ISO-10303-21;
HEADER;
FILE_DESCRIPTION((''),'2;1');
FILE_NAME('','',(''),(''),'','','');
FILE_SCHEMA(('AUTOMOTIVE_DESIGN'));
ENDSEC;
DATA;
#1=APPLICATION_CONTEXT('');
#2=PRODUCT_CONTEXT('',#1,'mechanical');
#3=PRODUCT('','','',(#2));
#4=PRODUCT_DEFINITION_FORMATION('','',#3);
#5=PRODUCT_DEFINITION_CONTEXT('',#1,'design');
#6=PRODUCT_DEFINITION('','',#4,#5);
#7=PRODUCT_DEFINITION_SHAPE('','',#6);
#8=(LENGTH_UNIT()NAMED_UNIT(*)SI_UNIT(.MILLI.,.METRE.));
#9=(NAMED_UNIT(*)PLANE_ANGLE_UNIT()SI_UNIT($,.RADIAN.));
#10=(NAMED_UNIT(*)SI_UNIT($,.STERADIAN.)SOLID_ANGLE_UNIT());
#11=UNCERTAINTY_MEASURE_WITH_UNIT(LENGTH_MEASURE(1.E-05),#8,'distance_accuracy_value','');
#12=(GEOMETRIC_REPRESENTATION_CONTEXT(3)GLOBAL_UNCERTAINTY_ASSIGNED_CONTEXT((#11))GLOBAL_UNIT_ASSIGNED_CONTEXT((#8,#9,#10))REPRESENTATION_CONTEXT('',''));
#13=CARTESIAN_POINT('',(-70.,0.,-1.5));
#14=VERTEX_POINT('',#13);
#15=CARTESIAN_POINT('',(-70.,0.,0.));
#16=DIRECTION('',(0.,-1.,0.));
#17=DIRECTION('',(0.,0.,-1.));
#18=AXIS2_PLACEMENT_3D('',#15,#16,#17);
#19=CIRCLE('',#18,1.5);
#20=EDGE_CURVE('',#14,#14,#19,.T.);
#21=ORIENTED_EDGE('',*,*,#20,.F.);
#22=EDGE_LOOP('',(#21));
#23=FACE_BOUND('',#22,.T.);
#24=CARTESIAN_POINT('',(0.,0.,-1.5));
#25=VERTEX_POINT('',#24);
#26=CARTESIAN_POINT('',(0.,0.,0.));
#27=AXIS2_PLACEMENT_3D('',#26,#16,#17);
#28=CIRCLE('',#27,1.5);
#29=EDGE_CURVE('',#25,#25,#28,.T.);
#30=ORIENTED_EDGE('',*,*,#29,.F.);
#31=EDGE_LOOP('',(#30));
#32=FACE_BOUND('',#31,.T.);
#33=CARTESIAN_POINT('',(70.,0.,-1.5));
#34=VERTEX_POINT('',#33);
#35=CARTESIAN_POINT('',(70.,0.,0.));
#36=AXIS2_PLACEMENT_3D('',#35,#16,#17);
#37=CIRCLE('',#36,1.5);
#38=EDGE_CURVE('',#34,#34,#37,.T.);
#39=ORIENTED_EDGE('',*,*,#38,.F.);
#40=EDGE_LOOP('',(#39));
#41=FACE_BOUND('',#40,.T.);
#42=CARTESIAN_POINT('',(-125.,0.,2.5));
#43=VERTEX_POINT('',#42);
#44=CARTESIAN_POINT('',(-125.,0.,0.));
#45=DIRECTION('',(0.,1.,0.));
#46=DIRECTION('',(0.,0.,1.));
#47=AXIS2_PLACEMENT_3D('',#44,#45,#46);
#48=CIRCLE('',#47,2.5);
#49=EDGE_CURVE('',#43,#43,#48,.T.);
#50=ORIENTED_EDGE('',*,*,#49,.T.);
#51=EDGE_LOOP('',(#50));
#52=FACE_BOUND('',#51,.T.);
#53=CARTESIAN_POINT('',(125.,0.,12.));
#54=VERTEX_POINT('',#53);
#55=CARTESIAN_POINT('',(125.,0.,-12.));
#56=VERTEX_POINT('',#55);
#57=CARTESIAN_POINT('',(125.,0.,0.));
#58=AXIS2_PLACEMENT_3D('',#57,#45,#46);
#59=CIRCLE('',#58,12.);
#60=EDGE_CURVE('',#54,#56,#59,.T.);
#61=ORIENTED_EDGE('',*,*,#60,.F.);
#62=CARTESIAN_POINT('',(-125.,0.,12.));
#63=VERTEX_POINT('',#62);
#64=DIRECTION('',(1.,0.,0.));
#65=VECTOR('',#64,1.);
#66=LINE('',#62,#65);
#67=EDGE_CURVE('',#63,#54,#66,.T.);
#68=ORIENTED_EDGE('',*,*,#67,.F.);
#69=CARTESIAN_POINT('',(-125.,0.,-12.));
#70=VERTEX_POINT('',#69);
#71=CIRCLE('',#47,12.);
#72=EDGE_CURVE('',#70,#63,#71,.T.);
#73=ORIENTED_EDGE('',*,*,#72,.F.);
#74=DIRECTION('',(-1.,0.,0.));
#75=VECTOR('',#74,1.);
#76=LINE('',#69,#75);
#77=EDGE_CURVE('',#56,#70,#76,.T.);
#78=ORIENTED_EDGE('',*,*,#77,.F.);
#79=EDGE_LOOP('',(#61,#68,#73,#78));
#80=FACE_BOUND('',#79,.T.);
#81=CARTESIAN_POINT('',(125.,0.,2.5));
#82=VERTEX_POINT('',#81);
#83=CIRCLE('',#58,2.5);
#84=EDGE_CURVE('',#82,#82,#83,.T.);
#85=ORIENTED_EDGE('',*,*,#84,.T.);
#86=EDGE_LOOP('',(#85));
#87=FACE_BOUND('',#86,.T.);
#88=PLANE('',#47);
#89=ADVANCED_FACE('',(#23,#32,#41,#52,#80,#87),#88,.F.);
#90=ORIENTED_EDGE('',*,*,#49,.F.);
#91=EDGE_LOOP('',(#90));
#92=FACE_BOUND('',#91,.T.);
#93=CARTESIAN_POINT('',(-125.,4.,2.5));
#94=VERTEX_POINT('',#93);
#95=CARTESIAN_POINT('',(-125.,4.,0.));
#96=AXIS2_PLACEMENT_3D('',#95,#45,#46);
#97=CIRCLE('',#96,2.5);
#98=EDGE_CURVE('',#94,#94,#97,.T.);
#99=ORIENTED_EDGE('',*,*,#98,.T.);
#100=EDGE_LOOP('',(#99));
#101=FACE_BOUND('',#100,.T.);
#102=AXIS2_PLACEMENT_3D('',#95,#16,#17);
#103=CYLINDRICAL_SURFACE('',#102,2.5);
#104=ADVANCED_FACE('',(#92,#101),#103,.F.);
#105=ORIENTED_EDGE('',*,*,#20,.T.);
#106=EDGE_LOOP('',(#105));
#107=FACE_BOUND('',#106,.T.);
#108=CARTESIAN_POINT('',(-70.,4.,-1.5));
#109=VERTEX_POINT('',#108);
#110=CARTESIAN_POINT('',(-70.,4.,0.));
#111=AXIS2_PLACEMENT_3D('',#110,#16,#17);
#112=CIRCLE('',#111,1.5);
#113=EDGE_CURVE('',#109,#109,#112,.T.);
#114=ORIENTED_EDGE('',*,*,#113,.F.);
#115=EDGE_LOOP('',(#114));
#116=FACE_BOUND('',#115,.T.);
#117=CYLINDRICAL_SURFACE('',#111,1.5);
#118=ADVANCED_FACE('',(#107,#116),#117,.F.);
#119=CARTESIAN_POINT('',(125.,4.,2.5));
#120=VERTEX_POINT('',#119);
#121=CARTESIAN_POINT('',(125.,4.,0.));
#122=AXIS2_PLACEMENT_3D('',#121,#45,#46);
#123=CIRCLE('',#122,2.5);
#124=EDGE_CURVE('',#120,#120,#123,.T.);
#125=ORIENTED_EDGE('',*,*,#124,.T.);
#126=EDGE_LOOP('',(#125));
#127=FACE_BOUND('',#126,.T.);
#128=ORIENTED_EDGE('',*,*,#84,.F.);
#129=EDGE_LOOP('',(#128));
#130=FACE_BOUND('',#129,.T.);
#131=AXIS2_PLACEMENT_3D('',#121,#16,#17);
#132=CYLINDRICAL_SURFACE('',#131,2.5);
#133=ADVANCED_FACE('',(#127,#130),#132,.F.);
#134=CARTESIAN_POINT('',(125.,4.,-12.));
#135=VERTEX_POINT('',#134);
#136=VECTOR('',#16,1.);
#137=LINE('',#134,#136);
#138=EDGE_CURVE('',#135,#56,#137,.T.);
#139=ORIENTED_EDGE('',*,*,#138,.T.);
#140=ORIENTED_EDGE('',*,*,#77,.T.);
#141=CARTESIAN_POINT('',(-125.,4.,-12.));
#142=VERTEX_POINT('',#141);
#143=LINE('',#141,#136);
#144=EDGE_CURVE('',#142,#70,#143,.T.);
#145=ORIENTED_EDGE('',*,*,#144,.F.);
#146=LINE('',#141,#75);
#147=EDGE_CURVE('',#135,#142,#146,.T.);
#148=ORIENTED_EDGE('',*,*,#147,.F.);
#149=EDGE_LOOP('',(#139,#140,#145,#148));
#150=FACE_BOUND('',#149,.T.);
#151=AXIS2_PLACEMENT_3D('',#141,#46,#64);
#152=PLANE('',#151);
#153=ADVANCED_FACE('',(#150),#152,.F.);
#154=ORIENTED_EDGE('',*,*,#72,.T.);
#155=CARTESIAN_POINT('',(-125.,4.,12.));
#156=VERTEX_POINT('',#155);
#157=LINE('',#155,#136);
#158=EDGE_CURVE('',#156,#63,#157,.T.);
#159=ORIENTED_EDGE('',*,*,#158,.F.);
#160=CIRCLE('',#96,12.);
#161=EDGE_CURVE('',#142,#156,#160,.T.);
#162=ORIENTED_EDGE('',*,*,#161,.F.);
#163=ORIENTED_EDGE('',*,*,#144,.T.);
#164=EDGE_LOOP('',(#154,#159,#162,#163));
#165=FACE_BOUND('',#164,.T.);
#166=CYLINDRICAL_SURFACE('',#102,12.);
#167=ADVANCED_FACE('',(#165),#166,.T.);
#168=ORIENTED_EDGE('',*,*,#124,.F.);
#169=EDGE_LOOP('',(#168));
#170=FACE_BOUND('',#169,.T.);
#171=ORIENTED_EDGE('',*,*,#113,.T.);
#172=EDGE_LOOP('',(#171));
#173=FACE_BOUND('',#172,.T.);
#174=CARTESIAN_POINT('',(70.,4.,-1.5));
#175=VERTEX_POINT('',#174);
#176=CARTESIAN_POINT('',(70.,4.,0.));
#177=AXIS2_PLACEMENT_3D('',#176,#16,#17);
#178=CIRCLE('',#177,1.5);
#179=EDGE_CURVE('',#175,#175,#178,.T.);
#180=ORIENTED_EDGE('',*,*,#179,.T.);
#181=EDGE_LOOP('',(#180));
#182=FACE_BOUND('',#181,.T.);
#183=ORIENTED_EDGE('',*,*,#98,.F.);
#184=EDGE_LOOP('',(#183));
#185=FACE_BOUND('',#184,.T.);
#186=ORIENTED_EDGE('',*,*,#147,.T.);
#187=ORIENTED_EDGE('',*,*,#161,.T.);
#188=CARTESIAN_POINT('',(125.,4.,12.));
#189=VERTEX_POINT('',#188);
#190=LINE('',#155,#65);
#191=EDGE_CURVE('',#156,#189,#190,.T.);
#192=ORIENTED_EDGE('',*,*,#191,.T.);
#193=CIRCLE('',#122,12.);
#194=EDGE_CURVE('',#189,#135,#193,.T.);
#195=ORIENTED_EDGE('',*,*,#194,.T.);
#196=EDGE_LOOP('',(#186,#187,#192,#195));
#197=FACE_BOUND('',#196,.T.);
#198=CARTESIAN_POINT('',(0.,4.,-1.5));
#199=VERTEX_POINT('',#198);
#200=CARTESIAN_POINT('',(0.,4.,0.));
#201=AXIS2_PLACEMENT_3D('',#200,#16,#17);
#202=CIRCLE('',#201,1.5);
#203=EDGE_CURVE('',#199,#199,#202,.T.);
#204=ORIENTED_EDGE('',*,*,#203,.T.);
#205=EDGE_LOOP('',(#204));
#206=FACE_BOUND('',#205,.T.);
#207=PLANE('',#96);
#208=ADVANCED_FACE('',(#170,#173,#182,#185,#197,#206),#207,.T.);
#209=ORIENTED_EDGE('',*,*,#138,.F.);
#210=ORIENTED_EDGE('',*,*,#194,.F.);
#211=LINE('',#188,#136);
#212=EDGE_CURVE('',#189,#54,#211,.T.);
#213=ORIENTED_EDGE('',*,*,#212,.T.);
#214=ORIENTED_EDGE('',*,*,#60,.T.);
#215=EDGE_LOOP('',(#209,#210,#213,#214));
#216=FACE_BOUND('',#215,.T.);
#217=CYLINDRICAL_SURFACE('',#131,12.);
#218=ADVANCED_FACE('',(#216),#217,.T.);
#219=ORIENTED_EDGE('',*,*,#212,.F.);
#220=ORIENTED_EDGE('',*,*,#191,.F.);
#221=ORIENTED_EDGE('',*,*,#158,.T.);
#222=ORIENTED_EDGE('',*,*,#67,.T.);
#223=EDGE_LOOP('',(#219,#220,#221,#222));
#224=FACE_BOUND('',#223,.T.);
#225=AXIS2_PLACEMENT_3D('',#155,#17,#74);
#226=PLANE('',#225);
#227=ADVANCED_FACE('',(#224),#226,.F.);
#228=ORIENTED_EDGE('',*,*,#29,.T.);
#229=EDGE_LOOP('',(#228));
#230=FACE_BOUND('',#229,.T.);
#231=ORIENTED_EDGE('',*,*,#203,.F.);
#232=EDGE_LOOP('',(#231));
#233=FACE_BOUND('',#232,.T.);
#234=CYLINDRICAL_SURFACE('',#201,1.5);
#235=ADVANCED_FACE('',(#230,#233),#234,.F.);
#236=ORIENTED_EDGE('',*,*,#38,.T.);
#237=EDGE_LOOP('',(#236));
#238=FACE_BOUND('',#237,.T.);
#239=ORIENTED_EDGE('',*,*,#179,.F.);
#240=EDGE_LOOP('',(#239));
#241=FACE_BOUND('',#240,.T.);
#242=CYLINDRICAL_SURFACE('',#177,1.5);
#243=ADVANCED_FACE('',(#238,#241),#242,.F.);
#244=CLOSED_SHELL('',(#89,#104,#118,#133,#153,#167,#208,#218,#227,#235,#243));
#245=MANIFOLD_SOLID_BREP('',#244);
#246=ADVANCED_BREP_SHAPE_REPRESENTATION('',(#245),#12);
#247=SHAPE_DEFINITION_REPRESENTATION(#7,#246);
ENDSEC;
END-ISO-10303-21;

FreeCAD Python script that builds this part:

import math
import FreeCAD as App
import Part
import Sketcher

doc = App.newDocument("Part")
body = doc.addObject("PartDesign::Body", "Body")

# Sketch on XZ plane
sketch1 = doc.addObject("Sketcher::SketchObject", "Sketch")
body.addObject(sketch1)
sketch1.AttachmentSupport = (doc.XZ_Plane, [""])
sketch1.MapMode = "FlatFace"
sketch1.addGeometry([
    Part.LineSegment(App.Vector(125, -12, 0), App.Vector(-125, -12, 0)),  # 0
    Part.ArcOfCircle(Part.Circle(App.Vector(-125, 0, 0), App.Vector(0, 0, 1), 12), math.radians(90), math.radians(270)),  # 1
    Part.LineSegment(App.Vector(-125, 12, 0), App.Vector(125, 12, 0)),  # 2
    Part.ArcOfCircle(Part.Circle(App.Vector(125, 0, 0), App.Vector(0, 0, 1), 12), math.radians(-90), math.radians(90)),  # 3
    Part.Circle(App.Vector(125, 0, 0), App.Vector(0, 0, 1), 2.5),  # 4
    Part.Circle(App.Vector(-125, 0, 0), App.Vector(0, 0, 1), 2.5),  # 5
], False)
sketch1.addConstraint([
    Sketcher.Constraint("Tangent", 0, 2, 1, 2),
    Sketcher.Constraint("Tangent", 1, 1, 2, 1),
    Sketcher.Constraint("Tangent", 2, 2, 3, 2),
    Sketcher.Constraint("Tangent", 3, 1, 0, 1),
    Sketcher.Constraint("Horizontal", 0),
    Sketcher.Constraint("Horizontal", 2),
    Sketcher.Constraint("Coincident", 4, 3, 3, 3),
    Sketcher.Constraint("Coincident", 5, 3, 1, 3),
    Sketcher.Constraint("Equal", 4, 5),
    Sketcher.Constraint("Symmetric", 1, 3, 3, 3, -1, 1),
    Sketcher.Constraint("Diameter", 4, 5.0),
    Sketcher.Constraint("Radius", 1, 12.0),
    Sketcher.Constraint("DistanceX", 0, 2, 0, 1, 250.0),
])
pad1 = doc.addObject("PartDesign::Pad", "Pad")
body.addObject(pad1)
pad1.Profile = sketch1
pad1.Length = 4
pad1.Reversed = True

# Sketch on XZ plane
sketch2 = doc.addObject("Sketcher::SketchObject", "Sketch001")
body.addObject(sketch2)
sketch2.AttachmentSupport = (doc.XZ_Plane, [""])
sketch2.MapMode = "FlatFace"
sketch2.addGeometry([
    Part.Circle(App.Vector(-70, 0, 0), App.Vector(0, 0, 1), 1.5),
    Part.Circle(App.Vector(0, 0, 0), App.Vector(0, 0, 1), 1.5),
    Part.Circle(App.Vector(70, 0, 0), App.Vector(0, 0, 1), 1.5),
], False)
sketch2.addConstraint([
    Sketcher.Constraint("Coincident", 1, 3, -1, 1),
    Sketcher.Constraint("Equal", 0, 1),
    Sketcher.Constraint("Equal", 1, 2),
    Sketcher.Constraint("Symmetric", 0, 3, 2, 3, -1, 1),
    Sketcher.Constraint("PointOnObject", 0, 3, -1),
    Sketcher.Constraint("Diameter", 0, 3.0),
    Sketcher.Constraint("DistanceX", 0, 3, -1, 1, 70.0),
])
pocket1 = doc.addObject("PartDesign::Pocket", "Pocket")
body.addObject(pocket1)
pocket1.Profile = sketch2
pocket1.Length = 4

doc.recompute()
